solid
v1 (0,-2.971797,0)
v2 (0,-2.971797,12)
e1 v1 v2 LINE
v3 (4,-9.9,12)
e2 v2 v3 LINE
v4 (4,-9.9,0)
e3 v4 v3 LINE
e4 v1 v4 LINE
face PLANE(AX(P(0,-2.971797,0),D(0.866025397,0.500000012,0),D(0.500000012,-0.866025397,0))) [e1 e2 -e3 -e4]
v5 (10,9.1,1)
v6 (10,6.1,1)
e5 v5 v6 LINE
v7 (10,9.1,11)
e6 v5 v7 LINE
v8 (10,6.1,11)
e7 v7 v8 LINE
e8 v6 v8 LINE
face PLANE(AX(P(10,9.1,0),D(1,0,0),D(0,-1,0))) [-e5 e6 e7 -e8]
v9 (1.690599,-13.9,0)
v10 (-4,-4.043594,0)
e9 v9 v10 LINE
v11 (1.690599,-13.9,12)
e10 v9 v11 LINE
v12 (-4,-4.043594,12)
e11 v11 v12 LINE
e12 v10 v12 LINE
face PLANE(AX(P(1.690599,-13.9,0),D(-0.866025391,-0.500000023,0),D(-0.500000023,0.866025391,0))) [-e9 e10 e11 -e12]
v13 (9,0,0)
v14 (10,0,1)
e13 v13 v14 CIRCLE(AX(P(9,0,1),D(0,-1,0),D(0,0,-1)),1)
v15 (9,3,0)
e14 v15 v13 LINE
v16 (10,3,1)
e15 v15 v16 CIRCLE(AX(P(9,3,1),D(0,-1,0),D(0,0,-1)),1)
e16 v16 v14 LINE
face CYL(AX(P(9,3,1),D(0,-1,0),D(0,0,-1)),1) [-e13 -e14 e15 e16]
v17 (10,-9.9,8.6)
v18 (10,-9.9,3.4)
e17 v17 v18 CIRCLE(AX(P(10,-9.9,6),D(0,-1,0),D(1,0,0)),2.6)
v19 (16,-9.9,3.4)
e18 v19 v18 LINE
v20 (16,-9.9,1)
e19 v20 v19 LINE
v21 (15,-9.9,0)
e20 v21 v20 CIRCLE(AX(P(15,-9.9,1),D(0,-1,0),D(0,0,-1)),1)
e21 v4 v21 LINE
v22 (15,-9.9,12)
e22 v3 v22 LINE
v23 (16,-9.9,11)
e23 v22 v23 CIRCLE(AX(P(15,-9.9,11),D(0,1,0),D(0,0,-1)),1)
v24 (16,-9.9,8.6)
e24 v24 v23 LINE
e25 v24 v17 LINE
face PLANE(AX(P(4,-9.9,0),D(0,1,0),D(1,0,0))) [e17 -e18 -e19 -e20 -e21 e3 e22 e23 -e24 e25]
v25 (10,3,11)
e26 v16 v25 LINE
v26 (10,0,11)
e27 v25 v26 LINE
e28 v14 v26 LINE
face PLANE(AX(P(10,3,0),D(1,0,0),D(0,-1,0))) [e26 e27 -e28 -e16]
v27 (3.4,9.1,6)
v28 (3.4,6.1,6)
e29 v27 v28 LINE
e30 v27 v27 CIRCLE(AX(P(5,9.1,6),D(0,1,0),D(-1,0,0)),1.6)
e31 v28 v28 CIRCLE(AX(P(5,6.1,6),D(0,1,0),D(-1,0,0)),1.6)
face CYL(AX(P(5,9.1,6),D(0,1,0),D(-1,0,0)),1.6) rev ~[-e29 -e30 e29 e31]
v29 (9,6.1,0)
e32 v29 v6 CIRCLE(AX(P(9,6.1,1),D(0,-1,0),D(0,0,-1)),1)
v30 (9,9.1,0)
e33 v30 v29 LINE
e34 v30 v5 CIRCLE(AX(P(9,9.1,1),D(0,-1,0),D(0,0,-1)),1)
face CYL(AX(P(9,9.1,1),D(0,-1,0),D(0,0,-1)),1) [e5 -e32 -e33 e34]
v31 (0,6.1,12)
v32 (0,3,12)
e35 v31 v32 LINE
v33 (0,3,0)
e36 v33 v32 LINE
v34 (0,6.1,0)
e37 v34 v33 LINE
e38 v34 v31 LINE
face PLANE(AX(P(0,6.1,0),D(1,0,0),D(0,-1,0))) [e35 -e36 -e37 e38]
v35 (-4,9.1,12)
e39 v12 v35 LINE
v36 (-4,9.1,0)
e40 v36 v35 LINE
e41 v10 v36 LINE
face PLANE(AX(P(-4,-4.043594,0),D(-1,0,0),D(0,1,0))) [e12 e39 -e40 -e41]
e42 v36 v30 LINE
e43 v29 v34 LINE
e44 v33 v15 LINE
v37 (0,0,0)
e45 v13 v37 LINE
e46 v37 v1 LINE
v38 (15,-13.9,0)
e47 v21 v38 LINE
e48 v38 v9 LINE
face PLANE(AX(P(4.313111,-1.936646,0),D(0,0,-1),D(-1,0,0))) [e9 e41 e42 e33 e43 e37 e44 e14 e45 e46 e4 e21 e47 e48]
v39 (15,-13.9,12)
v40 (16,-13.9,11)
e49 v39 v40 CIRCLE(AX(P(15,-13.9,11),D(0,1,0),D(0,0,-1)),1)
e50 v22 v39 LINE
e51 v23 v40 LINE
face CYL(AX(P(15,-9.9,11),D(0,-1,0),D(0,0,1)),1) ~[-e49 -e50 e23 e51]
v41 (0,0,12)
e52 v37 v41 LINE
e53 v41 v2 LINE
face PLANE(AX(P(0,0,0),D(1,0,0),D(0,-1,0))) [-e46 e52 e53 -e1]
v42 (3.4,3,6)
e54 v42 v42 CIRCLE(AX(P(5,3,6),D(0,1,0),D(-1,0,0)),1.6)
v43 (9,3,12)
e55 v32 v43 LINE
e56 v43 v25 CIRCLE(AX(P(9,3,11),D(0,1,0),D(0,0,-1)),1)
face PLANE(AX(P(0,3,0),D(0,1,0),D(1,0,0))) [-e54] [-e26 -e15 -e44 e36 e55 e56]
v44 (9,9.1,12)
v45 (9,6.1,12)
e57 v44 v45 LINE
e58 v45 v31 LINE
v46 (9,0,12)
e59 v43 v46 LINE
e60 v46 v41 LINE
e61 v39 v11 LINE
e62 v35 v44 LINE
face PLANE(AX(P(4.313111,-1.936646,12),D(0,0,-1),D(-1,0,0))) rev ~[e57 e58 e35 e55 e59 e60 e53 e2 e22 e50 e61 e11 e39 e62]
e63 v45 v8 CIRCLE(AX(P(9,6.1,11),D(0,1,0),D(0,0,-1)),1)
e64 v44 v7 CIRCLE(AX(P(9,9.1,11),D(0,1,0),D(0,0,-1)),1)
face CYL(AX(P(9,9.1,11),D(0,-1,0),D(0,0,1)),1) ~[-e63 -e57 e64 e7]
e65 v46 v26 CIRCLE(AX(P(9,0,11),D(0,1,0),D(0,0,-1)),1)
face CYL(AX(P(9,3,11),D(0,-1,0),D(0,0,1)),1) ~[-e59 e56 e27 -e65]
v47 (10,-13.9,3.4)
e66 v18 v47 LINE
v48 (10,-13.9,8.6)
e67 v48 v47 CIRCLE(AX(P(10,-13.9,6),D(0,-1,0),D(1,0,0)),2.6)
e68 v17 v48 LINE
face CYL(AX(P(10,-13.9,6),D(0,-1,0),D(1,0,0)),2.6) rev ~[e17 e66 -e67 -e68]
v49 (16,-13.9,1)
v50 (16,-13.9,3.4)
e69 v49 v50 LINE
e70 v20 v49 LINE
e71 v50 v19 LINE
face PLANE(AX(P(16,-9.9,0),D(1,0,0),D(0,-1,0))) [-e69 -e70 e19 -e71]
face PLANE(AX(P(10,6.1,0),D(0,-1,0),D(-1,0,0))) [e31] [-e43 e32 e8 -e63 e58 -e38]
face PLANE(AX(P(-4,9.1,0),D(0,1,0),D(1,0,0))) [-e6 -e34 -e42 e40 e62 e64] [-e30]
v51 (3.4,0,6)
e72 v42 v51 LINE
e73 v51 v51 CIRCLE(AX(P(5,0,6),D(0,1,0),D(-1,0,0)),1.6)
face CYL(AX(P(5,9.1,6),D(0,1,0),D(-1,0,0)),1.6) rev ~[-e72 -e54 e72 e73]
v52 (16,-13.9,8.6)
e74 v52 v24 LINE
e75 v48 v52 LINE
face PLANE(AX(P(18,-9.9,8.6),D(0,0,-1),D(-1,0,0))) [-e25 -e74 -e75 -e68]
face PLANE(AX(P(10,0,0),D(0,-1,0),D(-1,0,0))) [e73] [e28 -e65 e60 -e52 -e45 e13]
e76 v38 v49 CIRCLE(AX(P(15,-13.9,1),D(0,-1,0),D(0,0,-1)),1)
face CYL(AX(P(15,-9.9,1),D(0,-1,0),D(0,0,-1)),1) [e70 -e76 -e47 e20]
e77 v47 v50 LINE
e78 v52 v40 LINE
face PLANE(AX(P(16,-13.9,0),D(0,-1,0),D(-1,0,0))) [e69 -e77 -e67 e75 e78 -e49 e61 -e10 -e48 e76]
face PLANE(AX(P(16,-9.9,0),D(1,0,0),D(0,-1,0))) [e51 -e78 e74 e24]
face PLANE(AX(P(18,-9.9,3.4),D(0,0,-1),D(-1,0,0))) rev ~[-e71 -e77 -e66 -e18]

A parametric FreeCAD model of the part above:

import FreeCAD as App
import Part
import Sketcher
from FreeCAD import Vector
Q = App.Units.Quantity


def edges_at(feature, points):
    """Names of the edges that pass closest to the given points."""
    edges = feature.Shape.Edges
    near = lambda p: min(range(len(edges)), key=lambda i: edges[i].distToShape(Part.Vertex(*p))[0])
    return sorted({f"Edge{near(p) + 1}" for p in points})

doc = App.newDocument("Part")
body = doc.addObject("PartDesign::Body", "Body")

# Sketch on XY plane
sketch1 = body.newObject("Sketcher::SketchObject", "Sketch")
sketch1.AttachmentSupport = (doc.getObject("XY_Plane"), [""])
sketch1.MapMode = "FlatFace"
sketch1.addGeometry(Part.LineSegment(Vector(10, 9.1, 0), Vector(-4, 9.1, 0)), False)
sketch1.addGeometry(Part.LineSegment(Vector(-4, 9.1, 0), Vector(-4, -4, 0)), False)
sketch1.addGeometry(Part.LineSegment(Vector(-4, -4, 0), Vector(1.7, -13.9, 0)), False)
sketch1.addGeometry(Part.LineSegment(Vector(1.7, -13.9, 0), Vector(16, -13.9, 0)), False)
sketch1.addGeometry(Part.LineSegment(Vector(16, -13.9, 0), Vector(16, -9.9, 0)), False)
sketch1.addGeometry(Part.LineSegment(Vector(16, -9.9, 0), Vector(4, -9.9, 0)), False)
sketch1.addGeometry(Part.LineSegment(Vector(4, -9.9, 0), Vector(0, -3, 0)), False)
sketch1.addGeometry(Part.LineSegment(Vector(0, -3, 0), Vector(0, 0, 0)), False)
sketch1.addGeometry(Part.LineSegment(Vector(0, 0, 0), Vector(10, 0, 0)), False)
sketch1.addGeometry(Part.LineSegment(Vector(10, 0, 0), Vector(10, 3, 0)), False)
sketch1.addGeometry(Part.LineSegment(Vector(10, 3, 0), Vector(0, 3, 0)), False)
sketch1.addGeometry(Part.LineSegment(Vector(0, 3, 0), Vector(0, 6.1, 0)), False)
sketch1.addGeometry(Part.LineSegment(Vector(0, 6.1, 0), Vector(10, 6.1, 0)), False)
sketch1.addGeometry(Part.LineSegment(Vector(10, 6.1, 0), Vector(10, 9.1, 0)), False)
sketch1.addConstraint(Sketcher.Constraint("Coincident", 0, 2, 1, 1))
sketch1.addConstraint(Sketcher.Constraint("Coincident", 1, 2, 2, 1))
sketch1.addConstraint(Sketcher.Constraint("Coincident", 2, 2, 3, 1))
sketch1.addConstraint(Sketcher.Constraint("Coincident", 3, 2, 4, 1))
sketch1.addConstraint(Sketcher.Constraint("Coincident", 4, 2, 5, 1))
sketch1.addConstraint(Sketcher.Constraint("Coincident", 5, 2, 6, 1))
sketch1.addConstraint(Sketcher.Constraint("Coincident", 6, 2, 7, 1))
sketch1.addConstraint(Sketcher.Constraint("Coincident", 7, 2, 8, 1))
sketch1.addConstraint(Sketcher.Constraint("Coincident", 8, 2, 9, 1))
sketch1.addConstraint(Sketcher.Constraint("Coincident", 9, 2, 10, 1))
sketch1.addConstraint(Sketcher.Constraint("Coincident", 10, 2, 11, 1))
sketch1.addConstraint(Sketcher.Constraint("Coincident", 11, 2, 12, 1))
sketch1.addConstraint(Sketcher.Constraint("Coincident", 12, 2, 13, 1))
sketch1.addConstraint(Sketcher.Constraint("Coincident", 13, 2, 0, 1))
sketch1.addConstraint(Sketcher.Constraint("Horizontal", 0))
sketch1.addConstraint(Sketcher.Constraint("Vertical", 1))
sketch1.addConstraint(Sketcher.Constraint("Horizontal", 3))
sketch1.addConstraint(Sketcher.Constraint("Vertical", 4))
sketch1.addConstraint(Sketcher.Constraint("Horizontal", 5))
sketch1.addConstraint(Sketcher.Constraint("Vertical", 7))
sketch1.addConstraint(Sketcher.Constraint("Horizontal", 8))
sketch1.addConstraint(Sketcher.Constraint("Vertical", 9))
sketch1.addConstraint(Sketcher.Constraint("Horizontal", 10))
sketch1.addConstraint(Sketcher.Constraint("Vertical", 11))
sketch1.addConstraint(Sketcher.Constraint("Horizontal", 12))
sketch1.addConstraint(Sketcher.Constraint("Vertical", 13))
sketch1.addConstraint(Sketcher.Constraint("Coincident", 7, 2, -1, 1))
sketch1.addConstraint(Sketcher.Constraint("PointOnObject", 10, 2, -2))
sketch1.addConstraint(Sketcher.Constraint("Parallel", 2, 6))
sketch1.addConstraint(Sketcher.Constraint("Vertical", 9, 2, 12, 2))
sketch1.addConstraint(Sketcher.Constraint("Equal", 9, 13))
sketch1.addConstraint(Sketcher.Constraint("DistanceX", 0, 2, 0, 1, Q("14 mm")))
sketch1.addConstraint(Sketcher.Constraint("DistanceX", 5, 2, 5, 1, Q("12 mm")))
sketch1.addConstraint(Sketcher.Constraint("DistanceX", 8, 1, 8, 2, Q("10 mm")))
sketch1.addConstraint(Sketcher.Constraint("DistanceY", 4, 1, 4, 2, Q("4 mm")))
sketch1.addConstraint(Sketcher.Constraint("DistanceY", 9, 1, 9, 2, Q("3 mm")))
sketch1.addConstraint(Sketcher.Constraint("Angle", 2, Q("-59.999999 deg")))
sketch1.addConstraint(Sketcher.Constraint("Distance", 6, Q("8 mm")))
sketch1.addConstraint(Sketcher.Constraint("DistanceY", 11, 1, 11, 2, Q("3.1 mm")))
sketch1.addConstraint(Sketcher.Constraint("DistanceY", 2, 2, 0, 2, Q("23 mm")))
sketch1.addConstraint(Sketcher.Constraint("DistanceX", 3, 1, 3, 2, Q("14.309401 mm")))
pad1 = body.newObject("PartDesign::Pad", "Pad")
pad1.Profile = sketch1
pad1.Length = 12

# Sketch on XZ plane
sketch2 = body.newObject("Sketcher::SketchObject", "Sketch001")
sketch2.AttachmentSupport = (doc.getObject("XZ_Plane"), [""])
sketch2.MapMode = "FlatFace"
sketch2.AttachmentOffset = App.Placement(Vector(0, 0, 13.9), App.Rotation())
sketch2.addGeometry(Part.Circle(Vector(10, 6, 0), Vector(0, 0, 1), 2.6), False)
sketch2.addConstraint(Sketcher.Constraint("Diameter", 0, Q("5.2 mm")))
sketch2.addConstraint(Sketcher.Constraint("DistanceX", -1, 1, 0, 3, Q("10 mm")))
sketch2.addConstraint(Sketcher.Constraint("DistanceY", -1, 1, 0, 3, Q("6 mm")))
pocket1 = body.newObject("PartDesign::Pocket", "Pocket")
pocket1.Profile = sketch2
pocket1.Length = 4

# Sketch on XZ plane
sketch3 = body.newObject("Sketcher::SketchObject", "Sketch002")
sketch3.AttachmentSupport = (doc.getObject("XZ_Plane"), [""])
sketch3.MapMode = "FlatFace"
sketch3.AttachmentOffset = App.Placement(Vector(0, 0, -9.1), App.Rotation())
sketch3.addGeometry(Part.Circle(Vector(5, 6, 0), Vector(0, 0, 1), 1.6), False)
sketch3.addConstraint(Sketcher.Constraint("Diameter", 0, Q("3.2 mm")))
sketch3.addConstraint(Sketcher.Constraint("DistanceX", -1, 1, 0, 3, Q("5 mm")))
sketch3.addConstraint(Sketcher.Constraint("DistanceY", -1, 1, 0, 3, Q("6 mm")))
pocket2 = body.newObject("PartDesign::Pocket", "Pocket001")
pocket2.Profile = sketch3
pocket2.Length = 10
pocket2.Reversed = True
doc.recompute()

fillet = body.newObject("PartDesign::Fillet", "Fillet")
fillet.Base = (pocket2, edges_at(pocket2, [
    (10, 1.5, 12),
    (10, 7.6, 12),
    (10, 7.6, 0),
    (10, 1.5, 0),
    (16, -11.9, 12),
    (16, -11.9, 0),
]))
fillet.Radius = 1

# Sketch on XZ plane
sketch4 = body.newObject("Sketcher::SketchObject", "Sketch003")
sketch4.AttachmentSupport = (doc.getObject("XZ_Plane"), [""])
sketch4.MapMode = "FlatFace"
sketch4.AttachmentOffset = App.Placement(Vector(0, 0, 9.9), App.Rotation())
sketch4.addGeometry(Part.LineSegment(Vector(18, 9, 0), Vector(18, 3, 0)), False)
sketch4.addGeometry(Part.LineSegment(Vector(18, 3, 0), Vector(10, 3, 0)), False)
sketch4.addGeometry(Part.LineSegment(Vector(10, 3, 0), Vector(10, 9, 0)), False)
sketch4.addGeometry(Part.LineSegment(Vector(10, 9, 0), Vector(18, 9, 0)), False)
sketch4.addConstraint(Sketcher.Constraint("Coincident", 0, 2, 1, 1))
sketch4.addConstraint(Sketcher.Constraint("Coincident", 1, 2, 2, 1))
sketch4.addConstraint(Sketcher.Constraint("Coincident", 2, 2, 3, 1))
sketch4.addConstraint(Sketcher.Constraint("Coincident", 3, 2, 0, 1))
sketch4.addConstraint(Sketcher.Constraint("Vertical", 0))
sketch4.addConstraint(Sketcher.Constraint("Horizontal", 1))
sketch4.addConstraint(Sketcher.Constraint("Vertical", 2))
sketch4.addConstraint(Sketcher.Constraint("Horizontal", 3))
sketch4.addConstraint(Sketcher.Constraint("DistanceX", 1, 2, 1, 1, Q("8 mm")))
sketch4.addConstraint(Sketcher.Constraint("DistanceY", 0, 2, 0, 1, Q("5.2 mm")))
sketch4.addConstraint(Sketcher.Constraint("DistanceX", -1, 1, 0, 2, Q("18 mm")))
sketch4.addConstraint(Sketcher.Constraint("DistanceY", -1, 1, 0, 2, Q("3.4 mm")))
pocket3 = body.newObject("PartDesign::Pocket", "Pocket002")
pocket3.Profile = sketch4
pocket3.Length = 5
pocket3.Reversed = True

doc.recompute()
